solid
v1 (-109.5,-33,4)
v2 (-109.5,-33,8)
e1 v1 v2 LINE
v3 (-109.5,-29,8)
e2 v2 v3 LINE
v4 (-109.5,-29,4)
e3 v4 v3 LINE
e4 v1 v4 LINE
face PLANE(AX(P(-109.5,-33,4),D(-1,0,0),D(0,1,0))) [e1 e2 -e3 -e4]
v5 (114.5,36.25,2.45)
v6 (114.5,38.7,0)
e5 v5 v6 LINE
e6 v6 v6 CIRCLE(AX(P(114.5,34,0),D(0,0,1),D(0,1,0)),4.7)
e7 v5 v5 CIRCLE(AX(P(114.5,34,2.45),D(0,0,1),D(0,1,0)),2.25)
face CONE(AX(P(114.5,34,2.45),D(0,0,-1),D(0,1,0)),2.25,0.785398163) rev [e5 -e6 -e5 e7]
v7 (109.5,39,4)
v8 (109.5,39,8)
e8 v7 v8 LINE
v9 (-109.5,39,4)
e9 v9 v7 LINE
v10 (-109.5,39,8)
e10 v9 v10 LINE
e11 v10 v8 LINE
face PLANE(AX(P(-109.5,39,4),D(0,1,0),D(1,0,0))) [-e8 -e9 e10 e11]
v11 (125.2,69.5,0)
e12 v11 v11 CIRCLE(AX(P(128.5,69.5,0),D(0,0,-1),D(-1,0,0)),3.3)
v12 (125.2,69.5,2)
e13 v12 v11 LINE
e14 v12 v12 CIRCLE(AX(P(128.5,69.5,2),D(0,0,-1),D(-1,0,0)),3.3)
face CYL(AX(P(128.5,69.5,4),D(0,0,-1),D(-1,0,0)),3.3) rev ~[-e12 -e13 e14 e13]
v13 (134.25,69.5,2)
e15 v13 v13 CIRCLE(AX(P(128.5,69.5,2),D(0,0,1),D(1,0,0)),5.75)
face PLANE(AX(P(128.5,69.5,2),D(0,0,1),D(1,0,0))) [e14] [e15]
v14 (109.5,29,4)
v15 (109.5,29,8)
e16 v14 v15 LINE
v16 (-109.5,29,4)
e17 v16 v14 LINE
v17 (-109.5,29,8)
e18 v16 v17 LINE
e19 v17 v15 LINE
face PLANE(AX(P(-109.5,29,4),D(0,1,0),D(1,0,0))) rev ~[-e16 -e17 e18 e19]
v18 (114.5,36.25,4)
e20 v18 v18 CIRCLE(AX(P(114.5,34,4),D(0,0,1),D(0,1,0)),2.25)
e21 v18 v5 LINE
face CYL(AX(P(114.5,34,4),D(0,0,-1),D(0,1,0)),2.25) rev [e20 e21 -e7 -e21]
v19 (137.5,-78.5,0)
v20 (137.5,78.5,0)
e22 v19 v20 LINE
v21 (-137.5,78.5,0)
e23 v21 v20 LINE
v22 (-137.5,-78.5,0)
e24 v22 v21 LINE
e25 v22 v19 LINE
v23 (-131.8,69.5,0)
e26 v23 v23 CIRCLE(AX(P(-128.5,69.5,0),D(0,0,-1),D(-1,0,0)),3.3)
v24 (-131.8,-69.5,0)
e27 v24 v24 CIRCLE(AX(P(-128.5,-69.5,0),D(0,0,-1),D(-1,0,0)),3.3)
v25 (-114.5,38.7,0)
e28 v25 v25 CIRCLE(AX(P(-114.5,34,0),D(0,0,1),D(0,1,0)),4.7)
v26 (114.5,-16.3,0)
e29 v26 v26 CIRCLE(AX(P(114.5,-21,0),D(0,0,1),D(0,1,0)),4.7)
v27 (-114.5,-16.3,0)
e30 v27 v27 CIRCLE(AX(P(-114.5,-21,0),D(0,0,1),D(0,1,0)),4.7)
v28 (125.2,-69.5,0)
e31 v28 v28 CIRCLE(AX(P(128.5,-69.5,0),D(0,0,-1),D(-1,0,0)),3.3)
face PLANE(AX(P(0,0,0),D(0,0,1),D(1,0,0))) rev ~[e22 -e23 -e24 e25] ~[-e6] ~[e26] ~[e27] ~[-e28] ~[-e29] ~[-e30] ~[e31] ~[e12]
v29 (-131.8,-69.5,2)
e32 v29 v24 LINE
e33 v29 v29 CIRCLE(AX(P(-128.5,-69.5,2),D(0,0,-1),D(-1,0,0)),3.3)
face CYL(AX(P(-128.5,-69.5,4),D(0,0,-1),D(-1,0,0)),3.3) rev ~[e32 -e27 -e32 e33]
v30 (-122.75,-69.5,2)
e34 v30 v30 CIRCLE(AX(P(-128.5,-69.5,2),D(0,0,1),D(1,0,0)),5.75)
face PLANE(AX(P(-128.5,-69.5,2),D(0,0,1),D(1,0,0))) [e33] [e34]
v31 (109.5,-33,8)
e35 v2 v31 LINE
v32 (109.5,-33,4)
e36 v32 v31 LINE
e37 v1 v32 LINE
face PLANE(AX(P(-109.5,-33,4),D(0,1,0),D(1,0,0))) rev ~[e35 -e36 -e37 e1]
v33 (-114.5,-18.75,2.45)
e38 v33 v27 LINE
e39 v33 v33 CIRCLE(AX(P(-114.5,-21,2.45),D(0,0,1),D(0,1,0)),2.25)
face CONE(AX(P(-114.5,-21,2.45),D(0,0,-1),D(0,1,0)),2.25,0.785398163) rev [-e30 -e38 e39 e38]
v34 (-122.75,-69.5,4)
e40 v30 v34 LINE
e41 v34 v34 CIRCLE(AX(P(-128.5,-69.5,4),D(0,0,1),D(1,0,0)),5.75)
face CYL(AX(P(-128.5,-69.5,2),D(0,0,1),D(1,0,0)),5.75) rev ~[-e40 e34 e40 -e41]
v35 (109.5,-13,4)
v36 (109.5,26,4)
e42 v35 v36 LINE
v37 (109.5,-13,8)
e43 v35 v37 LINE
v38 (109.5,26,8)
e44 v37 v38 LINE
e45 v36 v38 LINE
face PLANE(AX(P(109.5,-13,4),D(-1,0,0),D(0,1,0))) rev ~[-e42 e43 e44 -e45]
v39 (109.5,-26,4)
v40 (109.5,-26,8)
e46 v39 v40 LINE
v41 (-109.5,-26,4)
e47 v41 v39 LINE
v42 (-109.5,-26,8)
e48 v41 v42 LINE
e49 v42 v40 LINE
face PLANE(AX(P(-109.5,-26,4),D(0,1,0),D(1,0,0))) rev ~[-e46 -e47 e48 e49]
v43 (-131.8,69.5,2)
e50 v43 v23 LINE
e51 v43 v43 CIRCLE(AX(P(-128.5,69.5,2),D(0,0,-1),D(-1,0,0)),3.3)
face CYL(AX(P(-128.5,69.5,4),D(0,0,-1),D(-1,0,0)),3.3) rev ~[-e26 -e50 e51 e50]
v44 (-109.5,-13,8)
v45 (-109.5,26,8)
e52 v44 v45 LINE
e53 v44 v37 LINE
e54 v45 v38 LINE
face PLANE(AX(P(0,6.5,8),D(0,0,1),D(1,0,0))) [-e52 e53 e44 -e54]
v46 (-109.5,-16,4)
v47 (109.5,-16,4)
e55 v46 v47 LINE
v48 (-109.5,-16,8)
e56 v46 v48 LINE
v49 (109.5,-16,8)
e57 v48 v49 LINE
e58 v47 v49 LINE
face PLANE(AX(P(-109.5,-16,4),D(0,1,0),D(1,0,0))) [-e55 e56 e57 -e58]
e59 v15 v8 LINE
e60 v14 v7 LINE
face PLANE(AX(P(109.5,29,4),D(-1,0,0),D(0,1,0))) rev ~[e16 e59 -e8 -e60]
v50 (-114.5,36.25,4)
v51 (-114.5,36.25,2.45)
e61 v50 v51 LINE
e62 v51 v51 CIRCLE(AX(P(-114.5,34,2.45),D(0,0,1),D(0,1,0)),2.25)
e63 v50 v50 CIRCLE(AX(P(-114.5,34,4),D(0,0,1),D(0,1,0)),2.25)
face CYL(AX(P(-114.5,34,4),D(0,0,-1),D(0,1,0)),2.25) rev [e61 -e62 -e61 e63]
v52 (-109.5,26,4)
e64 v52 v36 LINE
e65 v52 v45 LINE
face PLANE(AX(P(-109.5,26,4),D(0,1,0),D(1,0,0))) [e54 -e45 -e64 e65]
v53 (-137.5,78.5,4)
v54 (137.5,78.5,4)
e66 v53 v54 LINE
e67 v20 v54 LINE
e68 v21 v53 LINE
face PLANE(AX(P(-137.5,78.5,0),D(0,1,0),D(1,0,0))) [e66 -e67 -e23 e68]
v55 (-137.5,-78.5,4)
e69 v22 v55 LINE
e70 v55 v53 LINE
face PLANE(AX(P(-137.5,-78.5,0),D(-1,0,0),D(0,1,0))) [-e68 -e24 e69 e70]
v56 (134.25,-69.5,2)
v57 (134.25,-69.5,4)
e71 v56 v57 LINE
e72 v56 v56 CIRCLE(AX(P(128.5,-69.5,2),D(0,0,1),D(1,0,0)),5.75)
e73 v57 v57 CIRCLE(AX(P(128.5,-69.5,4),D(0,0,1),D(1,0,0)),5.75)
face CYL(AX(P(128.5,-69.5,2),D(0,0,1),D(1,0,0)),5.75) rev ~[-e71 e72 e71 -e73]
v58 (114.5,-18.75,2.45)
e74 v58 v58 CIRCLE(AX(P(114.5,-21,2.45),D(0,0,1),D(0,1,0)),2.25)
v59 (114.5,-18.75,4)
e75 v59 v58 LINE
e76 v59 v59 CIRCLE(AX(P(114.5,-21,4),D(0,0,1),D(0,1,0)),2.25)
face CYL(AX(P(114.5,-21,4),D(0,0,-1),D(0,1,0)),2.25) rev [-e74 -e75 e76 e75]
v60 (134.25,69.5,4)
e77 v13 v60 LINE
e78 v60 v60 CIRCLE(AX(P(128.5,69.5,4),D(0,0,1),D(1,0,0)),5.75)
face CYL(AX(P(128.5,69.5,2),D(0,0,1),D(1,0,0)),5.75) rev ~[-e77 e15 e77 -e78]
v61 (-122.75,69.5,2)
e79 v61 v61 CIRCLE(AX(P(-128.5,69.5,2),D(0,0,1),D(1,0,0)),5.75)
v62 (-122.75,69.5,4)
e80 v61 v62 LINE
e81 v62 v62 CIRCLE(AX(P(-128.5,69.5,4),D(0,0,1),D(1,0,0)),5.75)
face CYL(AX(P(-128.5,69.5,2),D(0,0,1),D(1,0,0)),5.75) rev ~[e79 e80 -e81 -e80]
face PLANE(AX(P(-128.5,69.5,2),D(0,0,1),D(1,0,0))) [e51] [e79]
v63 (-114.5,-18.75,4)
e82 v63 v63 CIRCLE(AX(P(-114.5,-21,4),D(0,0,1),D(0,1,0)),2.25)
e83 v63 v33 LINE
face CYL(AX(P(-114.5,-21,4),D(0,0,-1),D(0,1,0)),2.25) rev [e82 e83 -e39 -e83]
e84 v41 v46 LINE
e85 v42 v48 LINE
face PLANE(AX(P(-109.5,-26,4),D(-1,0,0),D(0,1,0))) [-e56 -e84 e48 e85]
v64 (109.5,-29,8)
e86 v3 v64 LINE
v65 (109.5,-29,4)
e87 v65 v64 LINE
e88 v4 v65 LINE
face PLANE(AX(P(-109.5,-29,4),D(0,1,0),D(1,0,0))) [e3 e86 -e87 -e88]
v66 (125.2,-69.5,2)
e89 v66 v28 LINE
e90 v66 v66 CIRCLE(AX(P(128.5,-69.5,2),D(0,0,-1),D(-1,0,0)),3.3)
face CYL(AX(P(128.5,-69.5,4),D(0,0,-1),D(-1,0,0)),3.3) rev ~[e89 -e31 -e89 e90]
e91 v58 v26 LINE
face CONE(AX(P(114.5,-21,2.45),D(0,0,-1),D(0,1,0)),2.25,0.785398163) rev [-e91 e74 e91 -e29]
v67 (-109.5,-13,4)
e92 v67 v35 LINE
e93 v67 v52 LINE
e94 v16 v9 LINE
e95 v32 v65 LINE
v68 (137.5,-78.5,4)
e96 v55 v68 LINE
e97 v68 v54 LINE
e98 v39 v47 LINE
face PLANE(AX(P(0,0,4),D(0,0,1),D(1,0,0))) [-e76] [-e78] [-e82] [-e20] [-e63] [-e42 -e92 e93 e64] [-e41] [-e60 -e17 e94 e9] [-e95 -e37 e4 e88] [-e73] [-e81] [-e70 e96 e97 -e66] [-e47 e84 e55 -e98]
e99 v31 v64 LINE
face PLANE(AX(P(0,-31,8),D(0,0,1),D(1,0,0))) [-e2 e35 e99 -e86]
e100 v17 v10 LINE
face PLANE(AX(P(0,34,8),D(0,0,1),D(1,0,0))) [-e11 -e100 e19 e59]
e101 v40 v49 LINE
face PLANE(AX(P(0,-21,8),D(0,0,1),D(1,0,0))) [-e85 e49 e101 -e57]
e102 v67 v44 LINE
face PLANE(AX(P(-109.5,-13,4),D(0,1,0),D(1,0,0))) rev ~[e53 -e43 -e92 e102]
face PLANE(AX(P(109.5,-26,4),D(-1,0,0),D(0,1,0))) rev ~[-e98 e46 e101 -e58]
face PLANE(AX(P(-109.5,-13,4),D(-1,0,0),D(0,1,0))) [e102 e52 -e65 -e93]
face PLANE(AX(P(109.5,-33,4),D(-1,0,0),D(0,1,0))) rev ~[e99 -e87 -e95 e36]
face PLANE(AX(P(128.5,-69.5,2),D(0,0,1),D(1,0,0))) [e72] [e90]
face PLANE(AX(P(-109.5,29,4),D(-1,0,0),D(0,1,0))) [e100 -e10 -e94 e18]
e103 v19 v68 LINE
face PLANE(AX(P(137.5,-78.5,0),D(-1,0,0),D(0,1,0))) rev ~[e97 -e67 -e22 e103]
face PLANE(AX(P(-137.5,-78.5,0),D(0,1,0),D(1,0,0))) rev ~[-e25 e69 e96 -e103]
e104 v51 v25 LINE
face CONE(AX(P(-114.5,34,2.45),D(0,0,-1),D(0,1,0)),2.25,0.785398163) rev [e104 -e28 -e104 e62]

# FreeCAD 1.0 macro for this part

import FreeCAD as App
import Part
import Sketcher
Q = App.Units.Quantity

doc = App.newDocument("Part")
body = doc.addObject("PartDesign::Body", "Body")

sketch1 = doc.addObject("Sketcher::SketchObject", "Sketch")
body.addObject(sketch1)
sketch1.AttachmentSupport = (doc.XY_Plane, [""])
sketch1.MapMode = "FlatFace"
sketch1.addGeometry([
    Part.LineSegment(App.Vector(-138, 78, 0), App.Vector(-138, -78, 0)),
    Part.LineSegment(App.Vector(-138, -78, 0), App.Vector(138, -78, 0)),
    Part.LineSegment(App.Vector(138, -78, 0), App.Vector(138, 78, 0)),
    Part.LineSegment(App.Vector(138, 78, 0), App.Vector(-138, 78, 0)),
], False)
sketch1.addConstraint([
    Sketcher.Constraint("Coincident", 0, 2, 1, 1),
    Sketcher.Constraint("Coincident", 1, 2, 2, 1),
    Sketcher.Constraint("Coincident", 2, 2, 3, 1),
    Sketcher.Constraint("Coincident", 3, 2, 0, 1),
    Sketcher.Constraint("Vertical", 0),
    Sketcher.Constraint("Horizontal", 1),
    Sketcher.Constraint("Vertical", 2),
    Sketcher.Constraint("Horizontal", 3),
    Sketcher.Constraint("Symmetric", 0, 2, 2, 2, -1, 1),
    Sketcher.Constraint("DistanceX", 1, 1, 1, 2, 275.0),
    Sketcher.Constraint("DistanceY", 0, 2, 0, 1, 157.0),
])
pad1 = doc.addObject("PartDesign::Pad", "Pad")
body.addObject(pad1)
pad1.Profile = sketch1
pad1.Length = 4

sketch2 = doc.addObject("Sketcher::SketchObject", "Sketch001")
body.addObject(sketch2)
sketch2.AttachmentSupport = (doc.YZ_Plane, [""])
sketch2.MapMode = "FlatFace"
sketch2.AttachmentOffset = App.Placement(App.Vector(0, 0, -114.5), App.Rotation())
sketch2.addGeometry([
    Part.LineSegment(App.Vector(-21, 4, 0), App.Vector(-21, 0, 0)),
    Part.LineSegment(App.Vector(-21, 0, 0), App.Vector(-16.3, 0, 0)),
    Part.LineSegment(App.Vector(-16.3, 0, 0), App.Vector(-18.8, 2.5, 0)),
    Part.LineSegment(App.Vector(-18.8, 2.5, 0), App.Vector(-18.8, 4, 0)),
    Part.LineSegment(App.Vector(-18.8, 4, 0), App.Vector(-21, 4, 0)),
], False)
sketch2.addGeometry(Part.LineSegment(App.Vector(-21, 0, 0), App.Vector(-21, 4, 0)), True)
sketch2.addConstraint([
    Sketcher.Constraint("Coincident", 0, 2, 1, 1),
    Sketcher.Constraint("Coincident", 1, 2, 2, 1),
    Sketcher.Constraint("Coincident", 2, 2, 3, 1),
    Sketcher.Constraint("Coincident", 3, 2, 4, 1),
    Sketcher.Constraint("Coincident", 4, 2, 0, 1),
    Sketcher.Constraint("Vertical", 0),
    Sketcher.Constraint("Horizontal", 1),
    Sketcher.Constraint("Vertical", 3),
    Sketcher.Constraint("Horizontal", 4),
    Sketcher.Constraint("Vertical", 5),
    Sketcher.Constraint("Coincident", 5, 1, 0, 2),
    Sketcher.Constraint("PointOnObject", 0, 2, -1),
    Sketcher.Constraint("Horizontal", 3, 2, 5, 2),
    Sketcher.Constraint("DistanceY", 0, 2, 0, 1, 4.0),
    Sketcher.Constraint("Angle", 2, Q("135 deg")),
    Sketcher.Constraint("DistanceX", 1, 1, 1, 2, 4.7),
    Sketcher.Constraint("DistanceX", 0, 2, -1, 1, 21.0),
    Sketcher.Constraint("DistanceX", 4, 2, 4, 1, 2.25),
])
groove = doc.addObject("PartDesign::Groove", "Groove")
body.addObject(groove)
groove.Profile = sketch2
groove.ReferenceAxis = (sketch2, ["Axis0"])
groove.Angle = 360
doc.recompute()

datumline = doc.addObject("PartDesign::Line", "DatumLine")
body.addObject(datumline)
datumline.Placement = App.Placement(App.Vector(0, 0, 0), App.Rotation(App.Vector(0, 0, 1), App.Vector(0.972348746, 0.233533542, 0)))
linearpattern = doc.addObject("PartDesign::LinearPattern", "LinearPattern")
body.addObject(linearpattern)
linearpattern.Originals = [groove]
linearpattern.Direction = (datumline, [""])
linearpattern.Mode = "offset"
linearpattern.Offset = 235.512208
linearpattern.Occurrences = 2
body.Tip = linearpattern
doc.recompute()

linearpattern2 = doc.addObject("PartDesign::LinearPattern", "LinearPattern001")
body.addObject(linearpattern2)
linearpattern2.Originals = [groove]
linearpattern2.Direction = (doc.X_Axis, [""])
linearpattern2.Mode = "offset"
linearpattern2.Offset = 229
linearpattern2.Occurrences = 2
body.Tip = linearpattern2
doc.recompute()

linearpattern3 = doc.addObject("PartDesign::LinearPattern", "LinearPattern002")
body.addObject(linearpattern3)
linearpattern3.Originals = [groove]
linearpattern3.Direction = (doc.Y_Axis, [""])
linearpattern3.Mode = "offset"
linearpattern3.Offset = 55
linearpattern3.Occurrences = 2
body.Tip = linearpattern3

sketch3 = doc.addObject("Sketcher::SketchObject", "Sketch002")
body.addObject(sketch3)
sketch3.AttachmentSupport = (doc.XY_Plane, [""])
sketch3.MapMode = "FlatFace"
sketch3.AttachmentOffset = App.Placement(App.Vector(0, 0, 4), App.Rotation())
sketch3.addGeometry([
    Part.Circle(App.Vector(128.5, -69.5, 0), App.Vector(0, 0, 1), 3.3),
    Part.Circle(App.Vector(-128.5, -69.5, 0), App.Vector(0, 0, 1), 3.3),
    Part.Circle(App.Vector(-128.5, 69.5, 0), App.Vector(0, 0, 1), 3.3),
    Part.Circle(App.Vector(128.5, 69.5, 0), App.Vector(0, 0, 1), 3.3),
], False)
sketch3.addConstraint([
    Sketcher.Constraint("Equal", 0, 1),
    Sketcher.Constraint("Equal", 1, 2),
    Sketcher.Constraint("Equal", 2, 3),
    Sketcher.Constraint("Symmetric", 0, 3, 2, 3, -1, 1),
    Sketcher.Constraint("Symmetric", 1, 3, 3, 3, -1, 1),
    Sketcher.Constraint("Symmetric", 0, 3, 1, 3, -2),
    Sketcher.Constraint("Diameter", 0, 6.6),
    Sketcher.Constraint("DistanceX", 1, 3, 0, 3, 257.0),
    Sketcher.Constraint("DistanceY", 1, 3, 2, 3, 139.0),
])
doc.recompute()
hole = doc.addObject("PartDesign::Hole", "Hole")
body.addObject(hole)
hole.Profile = sketch3
hole.ThreadType = "None"
hole.Diameter = 6.6
hole.DepthType = "ThroughAll"
hole.HoleCutType = "Counterbore"
hole.HoleCutDiameter = 11.5
hole.HoleCutDepth = 2

sketch4 = doc.addObject("Sketcher::SketchObject", "Sketch003")
body.addObject(sketch4)
sketch4.AttachmentSupport = (doc.XY_Plane, [""])
sketch4.MapMode = "FlatFace"
sketch4.AttachmentOffset = App.Placement(App.Vector(0, 0, 4), App.Rotation())
sketch4.addGeometry([
    Part.LineSegment(App.Vector(-109.5, 39, 0), App.Vector(-109.5, 29, 0)),
    Part.LineSegment(App.Vector(-109.5, 29, 0), App.Vector(109.5, 29, 0)),
    Part.LineSegment(App.Vector(109.5, 29, 0), App.Vector(109.5, 39, 0)),
    Part.LineSegment(App.Vector(109.5, 39, 0), App.Vector(-109.5, 39, 0)),
    Part.LineSegment(App.Vector(-109.5, 26, 0), App.Vector(-109.5, -13, 0)),
    Part.LineSegment(App.Vector(-109.5, -13, 0), App.Vector(109.5, -13, 0)),
    Part.LineSegment(App.Vector(109.5, -13, 0), App.Vector(109.5, 26, 0)),
    Part.LineSegment(App.Vector(109.5, 26, 0), App.Vector(-109.5, 26, 0)),
    Part.LineSegment(App.Vector(-109.5, -16, 0), App.Vector(-109.5, -26, 0)),
    Part.LineSegment(App.Vector(-109.5, -26, 0), App.Vector(109.5, -26, 0)),
    Part.LineSegment(App.Vector(109.5, -26, 0), App.Vector(109.5, -16, 0)),
    Part.LineSegment(App.Vector(109.5, -16, 0), App.Vector(-109.5, -16, 0)),
    Part.LineSegment(App.Vector(-109.5, -29, 0), App.Vector(-109.5, -33, 0)),
    Part.LineSegment(App.Vector(-109.5, -33, 0), App.Vector(109.5, -33, 0)),
    Part.LineSegment(App.Vector(109.5, -33, 0), App.Vector(109.5, -29, 0)),
    Part.LineSegment(App.Vector(109.5, -29, 0), App.Vector(-109.5, -29, 0)),
], False)
sketch4.addConstraint([
    Sketcher.Constraint("Coincident", 0, 2, 1, 1),
    Sketcher.Constraint("Coincident", 1, 2, 2, 1),
    Sketcher.Constraint("Coincident", 2, 2, 3, 1),
    Sketcher.Constraint("Coincident", 3, 2, 0, 1),
    Sketcher.Constraint("Coincident", 4, 2, 5, 1),
    Sketcher.Constraint("Coincident", 5, 2, 6, 1),
    Sketcher.Constraint("Coincident", 6, 2, 7, 1),
    Sketcher.Constraint("Coincident", 7, 2, 4, 1),
    Sketcher.Constraint("Coincident", 8, 2, 9, 1),
    Sketcher.Constraint("Coincident", 9, 2, 10, 1),
    Sketcher.Constraint("Coincident", 10, 2, 11, 1),
    Sketcher.Constraint("Coincident", 11, 2, 8, 1),
    Sketcher.Constraint("Coincident", 12, 2, 13, 1),
    Sketcher.Constraint("Coincident", 13, 2, 14, 1),
    Sketcher.Constraint("Coincident", 14, 2, 15, 1),
    Sketcher.Constraint("Coincident", 15, 2, 12, 1),
    Sketcher.Constraint("Vertical", 0),
    Sketcher.Constraint("Horizontal", 1),
    Sketcher.Constraint("Vertical", 2),
    Sketcher.Constraint("Horizontal", 3),
    Sketcher.Constraint("Vertical", 4),
    Sketcher.Constraint("Horizontal", 5),
    Sketcher.Constraint("Vertical", 6),
    Sketcher.Constraint("Horizontal", 7),
    Sketcher.Constraint("Vertical", 8),
    Sketcher.Constraint("Horizontal", 9),
    Sketcher.Constraint("Vertical", 10),
    Sketcher.Constraint("Horizontal", 11),
    Sketcher.Constraint("Vertical", 12),
    Sketcher.Constraint("Horizontal", 13),
    Sketcher.Constraint("Vertical", 14),
    Sketcher.Constraint("Horizontal", 15),
    Sketcher.Constraint("Symmetric", 6, 2, 8, 2, -1, 1),
    Sketcher.Constraint("Symmetric", 0, 2, 14, 2, -1, 1),
    Sketcher.Constraint("Vertical", 3, 2, 4, 2),
    Sketcher.Constraint("Vertical", 2, 2, 5, 2),
    Sketcher.Constraint("Vertical", 7, 2, 8, 2),
    Sketcher.Constraint("Vertical", 6, 2, 9, 2),
    Sketcher.Constraint("Vertical", 11, 2, 12, 2),
    Sketcher.Constraint("Equal", 2, 8),
    Sketcher.Constraint("DistanceX", 1, 1, 1, 2, 219.0),
    Sketcher.Constraint("DistanceY", 0, 2, 0, 1, 10.0),
    Sketcher.Constraint("DistanceY", 4, 2, 4, 1, 39.0),
    Sketcher.Constraint("DistanceY", 12, 2, 12, 1, 4.0),
    Sketcher.Constraint("DistanceY", -1, 1, 0, 2, 29.0),
    Sketcher.Constraint("DistanceY", 4, 2, -1, 1, 13.0),
])
pad2 = doc.addObject("PartDesign::Pad", "Pad001")
body.addObject(pad2)
pad2.Profile = sketch4
pad2.Length = 4

doc.recompute()
